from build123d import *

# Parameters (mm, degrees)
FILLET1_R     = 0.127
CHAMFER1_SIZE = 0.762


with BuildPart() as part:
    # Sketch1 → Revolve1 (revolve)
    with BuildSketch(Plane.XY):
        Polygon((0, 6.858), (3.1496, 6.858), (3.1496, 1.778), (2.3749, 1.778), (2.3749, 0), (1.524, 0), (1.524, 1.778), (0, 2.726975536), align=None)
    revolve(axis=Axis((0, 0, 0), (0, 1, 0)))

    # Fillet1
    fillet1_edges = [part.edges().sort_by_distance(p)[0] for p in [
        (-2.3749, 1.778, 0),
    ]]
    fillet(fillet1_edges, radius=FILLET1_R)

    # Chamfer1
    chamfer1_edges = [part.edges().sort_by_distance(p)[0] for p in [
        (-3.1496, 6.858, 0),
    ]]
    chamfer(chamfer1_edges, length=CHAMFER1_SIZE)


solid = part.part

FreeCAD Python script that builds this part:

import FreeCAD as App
import Part
import Sketcher
Q = App.Units.Quantity


def edges_at(feature, points):
    """Names of the edges that pass closest to the given points."""
    edges = feature.Shape.Edges
    near = lambda p: min(range(len(edges)), key=lambda i: edges[i].distToShape(Part.Vertex(*p))[0])
    return sorted({f"Edge{near(p) + 1}" for p in points})

doc = App.newDocument("Part")
params = doc.addObject("Spreadsheet::Sheet", "Params")
for row, (alias, value) in enumerate([
    ("sketch1_height", "0.2 in"),
    ("sketch1_height2", "0.07 in"),
    ("sketch1_width", "0.124 in"),
    ("revolution_angle", "360 deg"),
    ("fillet_radius", "0.005 in"),
    ("chamfer_size", "0.03 in"),
], start=1):
    params.set(f"A{row}", alias)
    params.set(f"B{row}", "=" + value)
    params.setAlias(f"B{row}", alias)

body = doc.addObject("PartDesign::Body", "Body")

# Sketch on XY plane
sketch1 = body.newObject("Sketcher::SketchObject", "Sketch")
sketch1.AttachmentSupport = (doc.getObject("XY_Plane"), [""])
sketch1.MapMode = "FlatFace"
sketch1.addGeometry([
    Part.LineSegment(App.Vector(3.1, 6.9, 0), App.Vector(0, 6.9, 0)),  # 0
    Part.LineSegment(App.Vector(0, 6.9, 0), App.Vector(0, 2.7, 0)),  # 1
    Part.LineSegment(App.Vector(0, 2.7, 0), App.Vector(1.5, 1.8, 0)),  # 2
    Part.LineSegment(App.Vector(1.5, 1.8, 0), App.Vector(1.5, 0, 0)),  # 3
    Part.LineSegment(App.Vector(1.5, 0, 0), App.Vector(2.4, 0, 0)),  # 4
    Part.LineSegment(App.Vector(2.4, 0, 0), App.Vector(2.4, 1.8, 0)),  # 5
    Part.LineSegment(App.Vector(2.4, 1.8, 0), App.Vector(3.1, 1.8, 0)),  # 6
    Part.LineSegment(App.Vector(3.1, 1.8, 0), App.Vector(3.1, 6.9, 0)),  # 7
], False)
sketch1.addConstraint([
    Sketcher.Constraint("Coincident", 0, 2, 1, 1),
    Sketcher.Constraint("Coincident", 1, 2, 2, 1),
    Sketcher.Constraint("Coincident", 2, 2, 3, 1),
    Sketcher.Constraint("Coincident", 3, 2, 4, 1),
    Sketcher.Constraint("Coincident", 4, 2, 5, 1),
    Sketcher.Constraint("Coincident", 5, 2, 6, 1),
    Sketcher.Constraint("Coincident", 6, 2, 7, 1),
    Sketcher.Constraint("Coincident", 7, 2, 0, 1),
    Sketcher.Constraint("Horizontal", 0),
    Sketcher.Constraint("Vertical", 1),
    Sketcher.Constraint("Vertical", 3),
    Sketcher.Constraint("Horizontal", 4),
    Sketcher.Constraint("Vertical", 5),
    Sketcher.Constraint("Horizontal", 6),
    Sketcher.Constraint("Vertical", 7),
    Sketcher.Constraint("PointOnObject", 0, 2, -2),
    Sketcher.Constraint("PointOnObject", 3, 2, -1),
    Sketcher.Constraint("Horizontal", 2, 2, 5, 2),
    Sketcher.Constraint("DistanceY", 7, 1, 7, 2, Q("0.2 in")),
    Sketcher.Constraint("DistanceY", 3, 2, 3, 1, Q("0.07 in")),
    Sketcher.Constraint("DistanceX", 0, 2, 0, 1, Q("0.124 in")),
    Sketcher.Constraint("DistanceX", -1, 1, 2, 2, Q("0.06 in")),
    Sketcher.Constraint("Angle", 2, Q("-31.91 deg")),
    Sketcher.Constraint("DistanceX", 4, 1, 4, 2, Q("0.0335 in")),
])
sketch1.setExpression("Constraints[18]", "Params.sketch1_height")
sketch1.setExpression("Constraints[19]", "Params.sketch1_height2")
sketch1.setExpression("Constraints[20]", "Params.sketch1_width")
revolution = body.newObject("PartDesign::Revolution", "Revolution")
revolution.Profile = sketch1
revolution.ReferenceAxis = (sketch1, ["V_Axis"])
revolution.setExpression("Angle", "Params.revolution_angle")
doc.recompute()

fillet = body.newObject("PartDesign::Fillet", "Fillet")
fillet.Base = (revolution, edges_at(revolution, [(-2.375, 1.778, 0)]))
fillet.setExpression("Radius", "Params.fillet_radius")
doc.recompute()

chamfer = body.newObject("PartDesign::Chamfer", "Chamfer")
chamfer.Base = (fillet, edges_at(fillet, [(-3.15, 6.858, 0)]))
chamfer.setExpression("Size", "Params.chamfer_size")

doc.recompute()
